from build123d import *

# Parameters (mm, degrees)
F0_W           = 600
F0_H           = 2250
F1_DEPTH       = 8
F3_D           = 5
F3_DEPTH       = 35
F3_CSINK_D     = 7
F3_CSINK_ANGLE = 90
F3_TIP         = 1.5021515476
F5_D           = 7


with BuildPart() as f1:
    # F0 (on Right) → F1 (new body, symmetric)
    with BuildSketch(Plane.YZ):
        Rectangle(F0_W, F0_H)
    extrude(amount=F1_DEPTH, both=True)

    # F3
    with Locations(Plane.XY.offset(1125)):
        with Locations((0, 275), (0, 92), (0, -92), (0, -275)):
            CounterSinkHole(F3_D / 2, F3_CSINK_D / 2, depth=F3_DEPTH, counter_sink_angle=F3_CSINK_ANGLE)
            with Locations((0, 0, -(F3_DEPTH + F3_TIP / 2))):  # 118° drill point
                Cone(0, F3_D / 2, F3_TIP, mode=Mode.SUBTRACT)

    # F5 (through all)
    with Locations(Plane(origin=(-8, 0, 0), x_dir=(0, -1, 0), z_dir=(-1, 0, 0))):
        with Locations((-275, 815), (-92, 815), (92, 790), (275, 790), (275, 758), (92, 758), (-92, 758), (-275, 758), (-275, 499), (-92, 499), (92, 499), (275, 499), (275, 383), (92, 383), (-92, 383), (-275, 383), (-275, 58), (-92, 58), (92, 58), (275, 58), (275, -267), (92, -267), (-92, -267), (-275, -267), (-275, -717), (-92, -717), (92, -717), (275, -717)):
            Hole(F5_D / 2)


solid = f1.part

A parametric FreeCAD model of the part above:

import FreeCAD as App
import Part
import Sketcher
Q = App.Units.Quantity

doc = App.newDocument("Part")
params = doc.addObject("Spreadsheet::Sheet", "Params")
for row, (alias, value) in enumerate([
    ("sketch1_width", "600 mm"),
    ("sketch1_height", "2250 mm"),
    ("pad1_length", "16 mm"),
    ("sketch2_diameter", "5 mm"),
    ("hole_diameter", "5 mm"),
    ("hole_depth", "35 mm"),
    ("hole_csink_diameter", "7 mm"),
    ("sketch3_diameter", "7 mm"),
    ("hole2_diameter", "7 mm"),
], start=1):
    params.set(f"A{row}", alias)
    params.set(f"B{row}", "=" + value)
    params.setAlias(f"B{row}", alias)

body = doc.addObject("PartDesign::Body", "Body")

# Sketch on YZ plane
sketch1 = body.newObject("Sketcher::SketchObject", "Sketch")
sketch1.AttachmentSupport = (doc.getObject("YZ_Plane"), [""])
sketch1.MapMode = "FlatFace"
sketch1.addGeometry([
    Part.LineSegment(App.Vector(-300, 1125, 0), App.Vector(-300, -1125, 0)),
    Part.LineSegment(App.Vector(-300, -1125, 0), App.Vector(300, -1125, 0)),
    Part.LineSegment(App.Vector(300, -1125, 0), App.Vector(300, 1125, 0)),
    Part.LineSegment(App.Vector(300, 1125, 0), App.Vector(-300, 1125, 0)),
], False)
sketch1.addConstraint([
    Sketcher.Constraint("Coincident", 0, 2, 1, 1),
    Sketcher.Constraint("Coincident", 1, 2, 2, 1),
    Sketcher.Constraint("Coincident", 2, 2, 3, 1),
    Sketcher.Constraint("Coincident", 3, 2, 0, 1),
    Sketcher.Constraint("Vertical", 0),
    Sketcher.Constraint("Horizontal", 1),
    Sketcher.Constraint("Vertical", 2),
    Sketcher.Constraint("Horizontal", 3),
    Sketcher.Constraint("Symmetric", 0, 2, 2, 2, -1, 1),
    Sketcher.Constraint("DistanceX", 1, 1, 1, 2, Q("600 mm")),
    Sketcher.Constraint("DistanceY", 0, 2, 0, 1, Q("2250 mm")),
])
sketch1.setExpression("Constraints[9]", "Params.sketch1_width")
sketch1.setExpression("Constraints[10]", "Params.sketch1_height")
pad1 = body.newObject("PartDesign::Pad", "Pad")
pad1.Profile = sketch1
pad1.setExpression("Length", "Params.pad1_length")
pad1.Midplane = True

# Sketch on XY plane
sketch2 = body.newObject("Sketcher::SketchObject", "Sketch001")
sketch2.AttachmentSupport = (doc.getObject("XY_Plane"), [""])
sketch2.MapMode = "FlatFace"
sketch2.AttachmentOffset = App.Placement(App.Vector(0, 0, 1125), App.Rotation())
sketch2.addGeometry([
    Part.Circle(App.Vector(0, 275, 0), App.Vector(0, 0, 1), 2.5),
    Part.Circle(App.Vector(0, 92, 0), App.Vector(0, 0, 1), 2.5),
    Part.Circle(App.Vector(0, -92, 0), App.Vector(0, 0, 1), 2.5),
    Part.Circle(App.Vector(0, -275, 0), App.Vector(0, 0, 1), 2.5),
], False)
sketch2.addConstraint([
    Sketcher.Constraint("Equal", 0, 1),
    Sketcher.Constraint("Equal", 1, 2),
    Sketcher.Constraint("Equal", 2, 3),
    Sketcher.Constraint("Symmetric", 1, 3, 2, 3, -1, 1),
    Sketcher.Constraint("Symmetric", 0, 3, 3, 3, -1, 1),
    Sketcher.Constraint("PointOnObject", 0, 3, -2),
    Sketcher.Constraint("PointOnObject", 1, 3, -2),
    Sketcher.Constraint("Diameter", 0, Q("5 mm")),
    Sketcher.Constraint("DistanceY", -1, 1, 0, 3, Q("275 mm")),
    Sketcher.Constraint("DistanceY", -1, 1, 1, 3, Q("92 mm")),
])
sketch2.setExpression("Constraints[7]", "Params.sketch2_diameter")
doc.recompute()
hole = body.newObject("PartDesign::Hole", "Hole")
hole.Profile = sketch2
hole.ThreadType = "None"
hole.setExpression("Diameter", "Params.hole_diameter")
hole.DepthType = "Dimension"
hole.setExpression("Depth", "Params.hole_depth")
hole.DrillPoint = "Angled"
hole.DrillPointAngle = 118
hole.HoleCutType = "Countersink"
hole.setExpression("HoleCutDiameter", "Params.hole_csink_diameter")
hole.HoleCutCountersinkAngle = 90

# Sketch on YZ plane
sketch3 = body.newObject("Sketcher::SketchObject", "Sketch002")
sketch3.AttachmentSupport = (doc.getObject("YZ_Plane"), [""])
sketch3.MapMode = "FlatFace"
sketch3.AttachmentOffset = App.Placement(App.Vector(0, 0, -8), App.Rotation())
sketch3.addGeometry([
    Part.Circle(App.Vector(275, 815, 0), App.Vector(0, 0, 1), 3.5),  # 0
    Part.Circle(App.Vector(92, 815, 0), App.Vector(0, 0, 1), 3.5),  # 1
    Part.Circle(App.Vector(-92, 790, 0), App.Vector(0, 0, 1), 3.5),  # 2
    Part.Circle(App.Vector(-275, 790, 0), App.Vector(0, 0, 1), 3.5),  # 3
    Part.Circle(App.Vector(-275, 758, 0), App.Vector(0, 0, 1), 3.5),  # 4
    Part.Circle(App.Vector(-92, 758, 0), App.Vector(0, 0, 1), 3.5),  # 5
    Part.Circle(App.Vector(92, 758, 0), App.Vector(0, 0, 1), 3.5),  # 6
    Part.Circle(App.Vector(275, 758, 0), App.Vector(0, 0, 1), 3.5),  # 7
    Part.Circle(App.Vector(275, 499, 0), App.Vector(0, 0, 1), 3.5),  # 8
    Part.Circle(App.Vector(92, 499, 0), App.Vector(0, 0, 1), 3.5),  # 9
    Part.Circle(App.Vector(-92, 499, 0), App.Vector(0, 0, 1), 3.5),  # 10
    Part.Circle(App.Vector(-275, 499, 0), App.Vector(0, 0, 1), 3.5),  # 11
    Part.Circle(App.Vector(-275, 383, 0), App.Vector(0, 0, 1), 3.5),  # 12
    Part.Circle(App.Vector(-92, 383, 0), App.Vector(0, 0, 1), 3.5),  # 13
    Part.Circle(App.Vector(92, 383, 0), App.Vector(0, 0, 1), 3.5),  # 14
    Part.Circle(App.Vector(275, 383, 0), App.Vector(0, 0, 1), 3.5),  # 15
    Part.Circle(App.Vector(275, 58, 0), App.Vector(0, 0, 1), 3.5),  # 16
    Part.Circle(App.Vector(92, 58, 0), App.Vector(0, 0, 1), 3.5),  # 17
    Part.Circle(App.Vector(-92, 58, 0), App.Vector(0, 0, 1), 3.5),  # 18
    Part.Circle(App.Vector(-275, 58, 0), App.Vector(0, 0, 1), 3.5),  # 19
    Part.Circle(App.Vector(-275, -267, 0), App.Vector(0, 0, 1), 3.5),  # 20
    Part.Circle(App.Vector(-92, -267, 0), App.Vector(0, 0, 1), 3.5),  # 21
    Part.Circle(App.Vector(92, -267, 0), App.Vector(0, 0, 1), 3.5),  # 22
    Part.Circle(App.Vector(275, -267, 0), App.Vector(0, 0, 1), 3.5),  # 23
    Part.Circle(App.Vector(275, -717, 0), App.Vector(0, 0, 1), 3.5),  # 24
    Part.Circle(App.Vector(92, -717, 0), App.Vector(0, 0, 1), 3.5),  # 25
    Part.Circle(App.Vector(-92, -717, 0), App.Vector(0, 0, 1), 3.5),  # 26
    Part.Circle(App.Vector(-275, -717, 0), App.Vector(0, 0, 1), 3.5),  # 27
], False)
sketch3.addConstraint([
    Sketcher.Constraint("Equal", 0, 1),
    Sketcher.Constraint("Equal", 1, 2),
    Sketcher.Constraint("Equal", 2, 3),
    Sketcher.Constraint("Equal", 3, 4),
    Sketcher.Constraint("Equal", 4, 5),
    Sketcher.Constraint("Equal", 5, 6),
    Sketcher.Constraint("Equal", 6, 7),
    Sketcher.Constraint("Equal", 7, 8),
    Sketcher.Constraint("Equal", 8, 9),
    Sketcher.Constraint("Equal", 9, 10),
    Sketcher.Constraint("Equal", 10, 11),
    Sketcher.Constraint("Equal", 11, 12),
    Sketcher.Constraint("Equal", 12, 13),
    Sketcher.Constraint("Equal", 13, 14),
    Sketcher.Constraint("Equal", 14, 15),
    Sketcher.Constraint("Equal", 15, 16),
    Sketcher.Constraint("Equal", 16, 17),
    Sketcher.Constraint("Equal", 17, 18),
    Sketcher.Constraint("Equal", 18, 19),
    Sketcher.Constraint("Equal", 19, 20),
    Sketcher.Constraint("Equal", 20, 21),
    Sketcher.Constraint("Equal", 21, 22),
    Sketcher.Constraint("Equal", 22, 23),
    Sketcher.Constraint("Equal", 23, 24),
    Sketcher.Constraint("Equal", 24, 25),
    Sketcher.Constraint("Equal", 25, 26),
    Sketcher.Constraint("Equal", 26, 27),
    Sketcher.Constraint("Symmetric", 5, 3, 6, 3, -2),
    Sketcher.Constraint("Symmetric", 4, 3, 7, 3, -2),
    Sketcher.Constraint("Symmetric", 9, 3, 10, 3, -2),
    Sketcher.Constraint("Symmetric", 8, 3, 11, 3, -2),
    Sketcher.Constraint("Symmetric", 13, 3, 14, 3, -2),
    Sketcher.Constraint("Symmetric", 12, 3, 15, 3, -2),
    Sketcher.Constraint("Symmetric", 17, 3, 18, 3, -2),
    Sketcher.Constraint("Symmetric", 16, 3, 19, 3, -2),
    Sketcher.Constraint("Symmetric", 21, 3, 22, 3, -2),
    Sketcher.Constraint("Symmetric", 20, 3, 23, 3, -2),
    Sketcher.Constraint("Symmetric", 25, 3, 26, 3, -2),
    Sketcher.Constraint("Symmetric", 24, 3, 27, 3, -2),
    Sketcher.Constraint("Horizontal", 0, 3, 1, 3),
    Sketcher.Constraint("Horizontal", 2, 3, 3, 3),
    Sketcher.Constraint("Horizontal", 4, 3, 5, 3),
    Sketcher.Constraint("Horizontal", 8, 3, 9, 3),
    Sketcher.Constraint("Horizontal", 12, 3, 13, 3),
    Sketcher.Constraint("Horizontal", 16, 3, 17, 3),
    Sketcher.Constraint("Horizontal", 20, 3, 21, 3),
    Sketcher.Constraint("Horizontal", 24, 3, 25, 3),
    Sketcher.Constraint("Vertical", 3, 3, 4, 3),
    Sketcher.Constraint("Vertical", 2, 3, 5, 3),
    Sketcher.Constraint("Vertical", 1, 3, 6, 3),
    Sketcher.Constraint("Vertical", 0, 3, 7, 3),
    Sketcher.Constraint("Vertical", 7, 3, 8, 3),
    Sketcher.Constraint("Vertical", 6, 3, 9, 3),
    Sketcher.Constraint("Vertical", 11, 3, 12, 3),
    Sketcher.Constraint("Vertical", 10, 3, 13, 3),
    Sketcher.Constraint("Vertical", 15, 3, 16, 3),
    Sketcher.Constraint("Vertical", 14, 3, 17, 3),
    Sketcher.Constraint("Vertical", 19, 3, 20, 3),
    Sketcher.Constraint("Vertical", 18, 3, 21, 3),
    Sketcher.Constraint("Vertical", 23, 3, 24, 3),
    Sketcher.Constraint("Vertical", 22, 3, 25, 3),
    Sketcher.Constraint("Diameter", 0, Q("7 mm")),
    Sketcher.Constraint("DistanceX", -1, 1, 0, 3, Q("275 mm")),
    Sketcher.Constraint("DistanceY", -1, 1, 0, 3, Q("815 mm")),
    Sketcher.Constraint("DistanceX", -1, 1, 1, 3, Q("92 mm")),
    Sketcher.Constraint("DistanceY", -1, 1, 2, 3, Q("790 mm")),
    Sketcher.Constraint("DistanceY", -1, 1, 4, 3, Q("758 mm")),
    Sketcher.Constraint("DistanceY", -1, 1, 8, 3, Q("499 mm")),
    Sketcher.Constraint("DistanceY", -1, 1, 12, 3, Q("383 mm")),
    Sketcher.Constraint("DistanceY", -1, 1, 16, 3, Q("58 mm")),
    Sketcher.Constraint("DistanceY", 20, 3, -1, 1, Q("267 mm")),
    Sketcher.Constraint("DistanceY", 24, 3, -1, 1, Q("717 mm")),
])
sketch3.setExpression("Constraints[61]", "Params.sketch3_diameter")
doc.recompute()
hole2 = body.newObject("PartDesign::Hole", "Hole001")
hole2.Profile = sketch3
hole2.ThreadType = "None"
hole2.setExpression("Diameter", "Params.hole2_diameter")
hole2.DepthType = "ThroughAll"
hole2.Reversed = True

doc.recompute()
